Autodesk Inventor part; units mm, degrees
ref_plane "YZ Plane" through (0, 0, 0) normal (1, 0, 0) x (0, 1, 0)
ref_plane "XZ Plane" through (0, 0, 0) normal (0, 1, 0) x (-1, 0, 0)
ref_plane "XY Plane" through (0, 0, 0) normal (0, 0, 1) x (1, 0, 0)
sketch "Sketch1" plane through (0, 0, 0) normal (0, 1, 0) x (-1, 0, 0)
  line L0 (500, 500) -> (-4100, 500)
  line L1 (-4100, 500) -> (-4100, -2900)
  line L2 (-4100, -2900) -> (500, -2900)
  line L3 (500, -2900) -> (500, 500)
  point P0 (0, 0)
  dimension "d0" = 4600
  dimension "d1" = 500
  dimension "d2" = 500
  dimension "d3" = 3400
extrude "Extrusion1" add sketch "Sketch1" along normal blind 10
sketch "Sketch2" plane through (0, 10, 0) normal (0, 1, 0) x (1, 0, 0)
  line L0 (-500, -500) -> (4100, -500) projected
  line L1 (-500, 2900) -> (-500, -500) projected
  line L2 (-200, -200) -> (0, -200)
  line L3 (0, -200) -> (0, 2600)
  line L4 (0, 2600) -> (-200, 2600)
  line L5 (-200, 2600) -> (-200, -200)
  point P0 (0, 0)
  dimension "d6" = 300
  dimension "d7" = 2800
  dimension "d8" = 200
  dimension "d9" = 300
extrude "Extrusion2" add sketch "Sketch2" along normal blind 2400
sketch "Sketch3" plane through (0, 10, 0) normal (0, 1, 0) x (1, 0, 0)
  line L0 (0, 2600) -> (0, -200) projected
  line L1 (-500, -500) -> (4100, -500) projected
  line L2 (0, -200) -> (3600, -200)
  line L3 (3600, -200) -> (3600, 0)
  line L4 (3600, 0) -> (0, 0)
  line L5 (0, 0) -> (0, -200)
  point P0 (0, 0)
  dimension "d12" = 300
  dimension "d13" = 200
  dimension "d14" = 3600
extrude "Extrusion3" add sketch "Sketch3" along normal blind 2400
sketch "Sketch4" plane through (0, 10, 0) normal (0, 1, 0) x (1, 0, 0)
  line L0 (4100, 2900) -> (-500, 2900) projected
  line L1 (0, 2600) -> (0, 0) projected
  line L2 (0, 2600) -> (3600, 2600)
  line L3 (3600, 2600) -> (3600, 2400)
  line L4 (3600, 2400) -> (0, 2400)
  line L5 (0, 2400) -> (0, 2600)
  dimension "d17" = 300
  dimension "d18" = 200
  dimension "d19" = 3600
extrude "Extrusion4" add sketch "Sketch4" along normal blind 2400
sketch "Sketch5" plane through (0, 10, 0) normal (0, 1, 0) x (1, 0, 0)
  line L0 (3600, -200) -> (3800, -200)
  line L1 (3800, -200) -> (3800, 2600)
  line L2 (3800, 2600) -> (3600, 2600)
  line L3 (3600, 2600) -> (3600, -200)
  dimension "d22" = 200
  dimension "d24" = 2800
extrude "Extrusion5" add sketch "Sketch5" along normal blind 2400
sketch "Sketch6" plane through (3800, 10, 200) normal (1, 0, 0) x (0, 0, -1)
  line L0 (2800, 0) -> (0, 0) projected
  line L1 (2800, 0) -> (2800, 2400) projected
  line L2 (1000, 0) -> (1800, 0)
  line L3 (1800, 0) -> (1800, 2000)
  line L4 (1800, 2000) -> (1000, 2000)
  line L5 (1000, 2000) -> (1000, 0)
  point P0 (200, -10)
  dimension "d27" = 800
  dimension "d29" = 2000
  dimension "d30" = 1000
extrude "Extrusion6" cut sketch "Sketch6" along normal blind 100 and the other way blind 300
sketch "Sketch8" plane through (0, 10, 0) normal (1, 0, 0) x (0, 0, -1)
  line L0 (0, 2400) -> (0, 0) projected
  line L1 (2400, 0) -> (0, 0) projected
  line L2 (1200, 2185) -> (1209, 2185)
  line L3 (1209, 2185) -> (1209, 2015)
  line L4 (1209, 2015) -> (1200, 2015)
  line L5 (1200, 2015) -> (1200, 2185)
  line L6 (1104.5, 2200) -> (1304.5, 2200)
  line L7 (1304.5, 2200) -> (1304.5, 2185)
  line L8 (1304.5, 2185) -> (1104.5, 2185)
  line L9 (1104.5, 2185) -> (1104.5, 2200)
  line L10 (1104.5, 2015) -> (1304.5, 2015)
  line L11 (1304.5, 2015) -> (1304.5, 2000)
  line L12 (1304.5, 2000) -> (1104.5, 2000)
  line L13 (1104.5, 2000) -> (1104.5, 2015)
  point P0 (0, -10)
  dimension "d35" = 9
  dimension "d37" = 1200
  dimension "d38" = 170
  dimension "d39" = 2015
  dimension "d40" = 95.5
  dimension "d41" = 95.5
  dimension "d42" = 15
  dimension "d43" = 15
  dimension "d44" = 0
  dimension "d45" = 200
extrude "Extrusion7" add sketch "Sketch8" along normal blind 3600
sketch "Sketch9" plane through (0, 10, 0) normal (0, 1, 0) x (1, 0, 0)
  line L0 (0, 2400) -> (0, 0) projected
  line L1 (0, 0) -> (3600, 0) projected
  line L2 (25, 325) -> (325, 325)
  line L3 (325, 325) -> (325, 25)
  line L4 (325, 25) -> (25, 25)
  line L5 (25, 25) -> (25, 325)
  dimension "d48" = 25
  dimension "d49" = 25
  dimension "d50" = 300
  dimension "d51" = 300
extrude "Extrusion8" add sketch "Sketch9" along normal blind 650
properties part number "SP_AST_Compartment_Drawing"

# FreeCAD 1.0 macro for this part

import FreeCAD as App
import Part
import Sketcher
from FreeCAD import Vector

doc = App.newDocument("Part")
params = doc.addObject("Spreadsheet::Sheet", "Params")
for row, (alias, value) in enumerate([
    ("sketch1_width", "4600 mm"),
    ("sketch1_height", "3400 mm"),
    ("pad1_length", "10 mm"),
    ("sketch2_width", "200 mm"),
    ("sketch2_height", "2800 mm"),
    ("pad2_length", "2400 mm"),
    ("sketch3_width", "3600 mm"),
    ("sketch3_height", "200 mm"),
    ("pad3_length", "2400 mm"),
    ("sketch4_width", "3600 mm"),
    ("sketch4_height", "200 mm"),
    ("pad4_length", "2400 mm"),
    ("sketch5_width", "200 mm"),
    ("sketch5_height", "2800 mm"),
    ("pad5_length", "2400 mm"),
    ("sketch6_width", "2000 mm"),
    ("sketch6_height", "800 mm"),
    ("pocket1_length", "100 mm"),
    ("pocket1_length2", "300 mm"),
    ("sketch7_width", "170 mm"),
    ("sketch7_width2", "15 mm"),
    ("sketch7_height", "200 mm"),
    ("sketch7_height2", "95.5 mm"),
    ("pad6_length", "3600 mm"),
    ("sketch8_width", "300 mm"),
    ("pad7_length", "650 mm"),
], start=1):
    params.set(f"A{row}", alias)
    params.set(f"B{row}", "=" + value)
    params.setAlias(f"B{row}", alias)

body = doc.addObject("PartDesign::Body", "Body")

# Sketch on XZ plane
sketch1 = body.newObject("Sketcher::SketchObject", "Sketch")
sketch1.AttachmentSupport = (doc.getObject("XZ_Plane"), [""])
sketch1.MapMode = "FlatFace"
sketch1.addGeometry(Part.LineSegment(Vector(-500, -2900, 0), Vector(-500, 500, 0)), False)
sketch1.addGeometry(Part.LineSegment(Vector(-500, 500, 0), Vector(4100, 500, 0)), False)
sketch1.addGeometry(Part.LineSegment(Vector(4100, 500, 0), Vector(4100, -2900, 0)), False)
sketch1.addGeometry(Part.LineSegment(Vector(4100, -2900, 0), Vector(-500, -2900, 0)), False)
sketch1.addConstraint(Sketcher.Constraint("Coincident", 0, 2, 1, 1))
sketch1.addConstraint(Sketcher.Constraint("Coincident", 1, 2, 2, 1))
sketch1.addConstraint(Sketcher.Constraint("Coincident", 2, 2, 3, 1))
sketch1.addConstraint(Sketcher.Constraint("Coincident", 3, 2, 0, 1))
sketch1.addConstraint(Sketcher.Constraint("Vertical", 0))
sketch1.addConstraint(Sketcher.Constraint("Horizontal", 1))
sketch1.addConstraint(Sketcher.Constraint("Vertical", 2))
sketch1.addConstraint(Sketcher.Constraint("Horizontal", 3))
sketch1.addConstraint(Sketcher.Constraint("DistanceX", 1, 1, 1, 2, 4600.0))
sketch1.addConstraint(Sketcher.Constraint("DistanceY", 0, 1, 0, 2, 3400.0))
sketch1.addConstraint(Sketcher.Constraint("DistanceX", 0, 2, -1, 1, 500.0))
sketch1.addConstraint(Sketcher.Constraint("DistanceY", -1, 1, 0, 2, 500.0))
sketch1.setExpression("Constraints[8]", "Params.sketch1_width")
sketch1.setExpression("Constraints[9]", "Params.sketch1_height")
pad1 = body.newObject("PartDesign::Pad", "Pad")
pad1.Profile = sketch1
pad1.setExpression("Length", "Params.pad1_length")
pad1.Reversed = True

# Sketch on XZ plane
sketch2 = body.newObject("Sketcher::SketchObject", "Sketch001")
sketch2.AttachmentSupport = (doc.getObject("XZ_Plane"), [""])
sketch2.MapMode = "FlatFace"
sketch2.AttachmentOffset = App.Placement(Vector(0, 0, -10), App.Rotation())
sketch2.addGeometry(Part.LineSegment(Vector(-200, -2600, 0), Vector(-200, 200, 0)), False)
sketch2.addGeometry(Part.LineSegment(Vector(-200, 200, 0), Vector(0, 200, 0)), False)
sketch2.addGeometry(Part.LineSegment(Vector(0, 200, 0), Vector(0, -2600, 0)), False)
sketch2.addGeometry(Part.LineSegment(Vector(0, -2600, 0), Vector(-200, -2600, 0)), False)
sketch2.addConstraint(Sketcher.Constraint("Coincident", 0, 2, 1, 1))
sketch2.addConstraint(Sketcher.Constraint("Coincident", 1, 2, 2, 1))
sketch2.addConstraint(Sketcher.Constraint("Coincident", 2, 2, 3, 1))
sketch2.addConstraint(Sketcher.Constraint("Coincident", 3, 2, 0, 1))
sketch2.addConstraint(Sketcher.Constraint("Vertical", 0))
sketch2.addConstraint(Sketcher.Constraint("Horizontal", 1))
sketch2.addConstraint(Sketcher.Constraint("Vertical", 2))
sketch2.addConstraint(Sketcher.Constraint("Horizontal", 3))
sketch2.addConstraint(Sketcher.Constraint("PointOnObject", 1, 2, -2))
sketch2.addConstraint(Sketcher.Constraint("DistanceX", 1, 1, 1, 2, 200.0))
sketch2.addConstraint(Sketcher.Constraint("DistanceY", 0, 1, 0, 2, 2800.0))
sketch2.addConstraint(Sketcher.Constraint("DistanceY", -1, 1, 0, 2, 200.0))
sketch2.setExpression("Constraints[9]", "Params.sketch2_width")
sketch2.setExpression("Constraints[10]", "Params.sketch2_height")
pad2 = body.newObject("PartDesign::Pad", "Pad001")
pad2.Profile = sketch2
pad2.setExpression("Length", "Params.pad2_length")
pad2.Reversed = True

# Sketch on XZ plane
sketch3 = body.newObject("Sketcher::SketchObject", "Sketch002")
sketch3.AttachmentSupport = (doc.getObject("XZ_Plane"), [""])
sketch3.MapMode = "FlatFace"
sketch3.AttachmentOffset = App.Placement(Vector(0, 0, -10), App.Rotation())
sketch3.addGeometry(Part.LineSegment(Vector(3600, 0, 0), Vector(0, 0, 0)), False)
sketch3.addGeometry(Part.LineSegment(Vector(0, 0, 0), Vector(0, 200, 0)), False)
sketch3.addGeometry(Part.LineSegment(Vector(0, 200, 0), Vector(3600, 200, 0)), False)
sketch3.addGeometry(Part.LineSegment(Vector(3600, 200, 0), Vector(3600, 0, 0)), False)
sketch3.addConstraint(Sketcher.Constraint("Coincident", 0, 2, 1, 1))
sketch3.addConstraint(Sketcher.Constraint("Coincident", 1, 2, 2, 1))
sketch3.addConstraint(Sketcher.Constraint("Coincident", 2, 2, 3, 1))
sketch3.addConstraint(Sketcher.Constraint("Coincident", 3, 2, 0, 1))
sketch3.addConstraint(Sketcher.Constraint("Horizontal", 0))
sketch3.addConstraint(Sketcher.Constraint("Vertical", 1))
sketch3.addConstraint(Sketcher.Constraint("Horizontal", 2))
sketch3.addConstraint(Sketcher.Constraint("Vertical", 3))
sketch3.addConstraint(Sketcher.Constraint("Coincident", 0, 2, -1, 1))
sketch3.addConstraint(Sketcher.Constraint("DistanceX", 0, 2, 0, 1, 3600.0))
sketch3.addConstraint(Sketcher.Constraint("DistanceY", 1, 1, 1, 2, 200.0))
sketch3.setExpression("Constraints[9]", "Params.sketch3_width")
sketch3.setExpression("Constraints[10]", "Params.sketch3_height")
pad3 = body.newObject("PartDesign::Pad", "Pad002")
pad3.Profile = sketch3
pad3.setExpression("Length", "Params.pad3_length")
pad3.Reversed = True

# Sketch on XZ plane
sketch4 = body.newObject("Sketcher::SketchObject", "Sketch003")
sketch4.AttachmentSupport = (doc.getObject("XZ_Plane"), [""])
sketch4.MapMode = "FlatFace"
sketch4.AttachmentOffset = App.Placement(Vector(0, 0, -10), App.Rotation())
sketch4.addGeometry(Part.LineSegment(Vector(3600, -2600, 0), Vector(0, -2600, 0)), False)
sketch4.addGeometry(Part.LineSegment(Vector(0, -2600, 0), Vector(0, -2400, 0)), False)
sketch4.addGeometry(Part.LineSegment(Vector(0, -2400, 0), Vector(3600, -2400, 0)), False)
sketch4.addGeometry(Part.LineSegment(Vector(3600, -2400, 0), Vector(3600, -2600, 0)), False)
sketch4.addConstraint(Sketcher.Constraint("Coincident", 0, 2, 1, 1))
sketch4.addConstraint(Sketcher.Constraint("Coincident", 1, 2, 2, 1))
sketch4.addConstraint(Sketcher.Constraint("Coincident", 2, 2, 3, 1))
sketch4.addConstraint(Sketcher.Constraint("Coincident", 3, 2, 0, 1))
sketch4.addConstraint(Sketcher.Constraint("Horizontal", 0))
sketch4.addConstraint(Sketcher.Constraint("Vertical", 1))
sketch4.addConstraint(Sketcher.Constraint("Horizontal", 2))
sketch4.addConstraint(Sketcher.Constraint("Vertical", 3))
sketch4.addConstraint(Sketcher.Constraint("PointOnObject", 0, 2, -2))
sketch4.addConstraint(Sketcher.Constraint("DistanceX", 0, 2, 0, 1, 3600.0))
sketch4.addConstraint(Sketcher.Constraint("DistanceY", 1, 1, 1, 2, 200.0))
sketch4.addConstraint(Sketcher.Constraint("DistanceY", 0, 2, -1, 1, 2600.0))
sketch4.setExpression("Constraints[9]", "Params.sketch4_width")
sketch4.setExpression("Constraints[10]", "Params.sketch4_height")
pad4 = body.newObject("PartDesign::Pad", "Pad003")
pad4.Profile = sketch4
pad4.setExpression("Length", "Params.pad4_length")
pad4.Reversed = True

# Sketch on XZ plane
sketch5 = body.newObject("Sketcher::SketchObject", "Sketch004")
sketch5.AttachmentSupport = (doc.getObject("XZ_Plane"), [""])
sketch5.MapMode = "FlatFace"
sketch5.AttachmentOffset = App.Placement(Vector(0, 0, -10), App.Rotation())
sketch5.addGeometry(Part.LineSegment(Vector(3600, -2600, 0), Vector(3600, 200, 0)), False)
sketch5.addGeometry(Part.LineSegment(Vector(3600, 200, 0), Vector(3800, 200, 0)), False)
sketch5.addGeometry(Part.LineSegment(Vector(3800, 200, 0), Vector(3800, -2600, 0)), False)
sketch5.addGeometry(Part.LineSegment(Vector(3800, -2600, 0), Vector(3600, -2600, 0)), False)
sketch5.addConstraint(Sketcher.Constraint("Coincident", 0, 2, 1, 1))
sketch5.addConstraint(Sketcher.Constraint("Coincident", 1, 2, 2, 1))
sketch5.addConstraint(Sketcher.Constraint("Coincident", 2, 2, 3, 1))
sketch5.addConstraint(Sketcher.Constraint("Coincident", 3, 2, 0, 1))
sketch5.addConstraint(Sketcher.Constraint("Vertical", 0))
sketch5.addConstraint(Sketcher.Constraint("Horizontal", 1))
sketch5.addConstraint(Sketcher.Constraint("Vertical", 2))
sketch5.addConstraint(Sketcher.Constraint("Horizontal", 3))
sketch5.addConstraint(Sketcher.Constraint("DistanceX", 1, 1, 1, 2, 200.0))
sketch5.addConstraint(Sketcher.Constraint("DistanceY", 0, 1, 0, 2, 2800.0))
sketch5.addConstraint(Sketcher.Constraint("DistanceY", -1, 1, 0, 2, 200.0))
sketch5.addConstraint(Sketcher.Constraint("DistanceX", -1, 1, 0, 2, 3600.0))
sketch5.setExpression("Constraints[8]", "Params.sketch5_width")
sketch5.setExpression("Constraints[9]", "Params.sketch5_height")
pad5 = body.newObject("PartDesign::Pad", "Pad004")
pad5.Profile = sketch5
pad5.setExpression("Length", "Params.pad5_length")
pad5.Reversed = True

# Sketch on YZ plane
sketch6 = body.newObject("Sketcher::SketchObject", "Sketch005")
sketch6.AttachmentSupport = (doc.getObject("YZ_Plane"), [""])
sketch6.MapMode = "FlatFace"
sketch6.AttachmentOffset = App.Placement(Vector(0, 0, 3800), App.Rotation())
sketch6.addGeometry(Part.LineSegment(Vector(10, -800, 0), Vector(10, -1600, 0)), False)
sketch6.addGeometry(Part.LineSegment(Vector(10, -1600, 0), Vector(2010, -1600, 0)), False)
sketch6.addGeometry(Part.LineSegment(Vector(2010, -1600, 0), Vector(2010, -800, 0)), False)
sketch6.addGeometry(Part.LineSegment(Vector(2010, -800, 0), Vector(10, -800, 0)), False)
sketch6.addConstraint(Sketcher.Constraint("Coincident", 0, 2, 1, 1))
sketch6.addConstraint(Sketcher.Constraint("Coincident", 1, 2, 2, 1))
sketch6.addConstraint(Sketcher.Constraint("Coincident", 2, 2, 3, 1))
sketch6.addConstraint(Sketcher.Constraint("Coincident", 3, 2, 0, 1))
sketch6.addConstraint(Sketcher.Constraint("Vertical", 0))
sketch6.addConstraint(Sketcher.Constraint("Horizontal", 1))
sketch6.addConstraint(Sketcher.Constraint("Vertical", 2))
sketch6.addConstraint(Sketcher.Constraint("Horizontal", 3))
sketch6.addConstraint(Sketcher.Constraint("DistanceX", 1, 1, 1, 2, 2000.0))
sketch6.addConstraint(Sketcher.Constraint("DistanceY", 0, 2, 0, 1, 800.0))
sketch6.addConstraint(Sketcher.Constraint("DistanceY", 2, 2, -1, 1, 800.0))
sketch6.addConstraint(Sketcher.Constraint("DistanceX", -1, 1, 0, 2, 10.0))
sketch6.setExpression("Constraints[8]", "Params.sketch6_width")
sketch6.setExpression("Constraints[9]", "Params.sketch6_height")
pocket1 = body.newObject("PartDesign::Pocket", "Pocket")
pocket1.Profile = sketch6
pocket1.Type = "TwoLengths"
pocket1.setExpression("Length", "Params.pocket1_length")
pocket1.setExpression("Length2", "Params.pocket1_length2")
pocket1.Reversed = True

# Sketch on YZ plane
sketch7 = body.newObject("Sketcher::SketchObject", "Sketch006")
sketch7.AttachmentSupport = (doc.getObject("YZ_Plane"), [""])
sketch7.MapMode = "FlatFace"
sketch7.addGeometry(Part.LineSegment(Vector(2195, -1104, 0), Vector(2195, -1200, 0)), False)
sketch7.addGeometry(Part.LineSegment(Vector(2195, -1200, 0), Vector(2025, -1200, 0)), False)
sketch7.addGeometry(Part.LineSegment(Vector(2025, -1200, 0), Vector(2025, -1104, 0)), False)
sketch7.addGeometry(Part.LineSegment(Vector(2025, -1104, 0), Vector(2010, -1104, 0)), False)
sketch7.addGeometry(Part.LineSegment(Vector(2010, -1104, 0), Vector(2010, -1304, 0)), False)
sketch7.addGeometry(Part.LineSegment(Vector(2010, -1304, 0), Vector(2025, -1304, 0)), False)
sketch7.addGeometry(Part.LineSegment(Vector(2025, -1304, 0), Vector(2025, -1209, 0)), False)
sketch7.addGeometry(Part.LineSegment(Vector(2025, -1209, 0), Vector(2195, -1209, 0)), False)
sketch7.addGeometry(Part.LineSegment(Vector(2195, -1209, 0), Vector(2195, -1304, 0)), False)
sketch7.addGeometry(Part.LineSegment(Vector(2195, -1304, 0), Vector(2210, -1304, 0)), False)
sketch7.addGeometry(Part.LineSegment(Vector(2210, -1304, 0), Vector(2210, -1104, 0)), False)
sketch7.addGeometry(Part.LineSegment(Vector(2210, -1104, 0), Vector(2195, -1104, 0)), False)
sketch7.addConstraint(Sketcher.Constraint("Coincident", 0, 2, 1, 1))
sketch7.addConstraint(Sketcher.Constraint("Coincident", 1, 2, 2, 1))
sketch7.addConstraint(Sketcher.Constraint("Coincident", 2, 2, 3, 1))
sketch7.addConstraint(Sketcher.Constraint("Coincident", 3, 2, 4, 1))
sketch7.addConstraint(Sketcher.Constraint("Coincident", 4, 2, 5, 1))
sketch7.addConstraint(Sketcher.Constraint("Coincident", 5, 2, 6, 1))
sketch7.addConstraint(Sketcher.Constraint("Coincident", 6, 2, 7, 1))
sketch7.addConstraint(Sketcher.Constraint("Coincident", 7, 2, 8, 1))
sketch7.addConstraint(Sketcher.Constraint("Coincident", 8, 2, 9, 1))
sketch7.addConstraint(Sketcher.Constraint("Coincident", 9, 2, 10, 1))
sketch7.addConstraint(Sketcher.Constraint("Coincident", 10, 2, 11, 1))
sketch7.addConstraint(Sketcher.Constraint("Coincident", 11, 2, 0, 1))
sketch7.addConstraint(Sketcher.Constraint("Vertical", 0))
sketch7.addConstraint(Sketcher.Constraint("Horizontal", 1))
sketch7.addConstraint(Sketcher.Constraint("Vertical", 2))
sketch7.addConstraint(Sketcher.Constraint("Horizontal", 3))
sketch7.addConstraint(Sketcher.Constraint("Vertical", 4))
sketch7.addConstraint(Sketcher.Constraint("Horizontal", 5))
sketch7.addConstraint(Sketcher.Constraint("Vertical", 6))
sketch7.addConstraint(Sketcher.Constraint("Horizontal", 7))
sketch7.addConstraint(Sketcher.Constraint("Vertical", 8))
sketch7.addConstraint(Sketcher.Constraint("Horizontal", 9))
sketch7.addConstraint(Sketcher.Constraint("Vertical", 10))
sketch7.addConstraint(Sketcher.Constraint("Horizontal", 11))
sketch7.addConstraint(Sketcher.Constraint("Horizontal", 5, 2, 8, 2))
sketch7.addConstraint(Sketcher.Constraint("Horizontal", 3, 2, 10, 2))
sketch7.addConstraint(Sketcher.Constraint("Vertical", 2, 2, 5, 2))
sketch7.addConstraint(Sketcher.Constraint("Vertical", 0, 2, 7, 2))
sketch7.addConstraint(Sketcher.Constraint("Equal", 5, 9))
sketch7.addConstraint(Sketcher.Constraint("Equal", 2, 6))
sketch7.addConstraint(Sketcher.Constraint("DistanceX", 1, 2, 1, 1, 170.0))
sketch7.addConstraint(Sketcher.Constraint("DistanceX", 3, 2, 3, 1, 15.0))
sketch7.addConstraint(Sketcher.Constraint("DistanceY", 4, 2, 4, 1, 200.0))
sketch7.addConstraint(Sketcher.Constraint("DistanceY", 0, 2, 0, 1, 95.5))
sketch7.addConstraint(Sketcher.Constraint("DistanceY", 0, 2, -1, 1, 1200.0))
sketch7.addConstraint(Sketcher.Constraint("DistanceX", -1, 1, 0, 2, 2195.0))
sketch7.setExpression("Constraints[30]", "Params.sketch7_width")
sketch7.setExpression("Constraints[31]", "Params.sketch7_width2")
sketch7.setExpression("Constraints[32]", "Params.sketch7_height")
sketch7.setExpression("Constraints[33]", "Params.sketch7_height2")
pad6 = body.newObject("PartDesign::Pad", "Pad005")
pad6.Profile = sketch7
pad6.setExpression("Length", "Params.pad6_length")

# Sketch on XZ plane
sketch8 = body.newObject("Sketcher::SketchObject", "Sketch007")
sketch8.AttachmentSupport = (doc.getObject("XZ_Plane"), [""])
sketch8.MapMode = "FlatFace"
sketch8.AttachmentOffset = App.Placement(Vector(0, 0, -10), App.Rotation())
sketch8.addGeometry(Part.LineSegment(Vector(325, -325, 0), Vector(25, -325, 0)), False)
sketch8.addGeometry(Part.LineSegment(Vector(25, -325, 0), Vector(25, -25, 0)), False)
sketch8.addGeometry(Part.LineSegment(Vector(25, -25, 0), Vector(325, -25, 0)), False)
sketch8.addGeometry(Part.LineSegment(Vector(325, -25, 0), Vector(325, -325, 0)), False)
sketch8.addConstraint(Sketcher.Constraint("Coincident", 0, 2, 1, 1))
sketch8.addConstraint(Sketcher.Constraint("Coincident", 1, 2, 2, 1))
sketch8.addConstraint(Sketcher.Constraint("Coincident", 2, 2, 3, 1))
sketch8.addConstraint(Sketcher.Constraint("Coincident", 3, 2, 0, 1))
sketch8.addConstraint(Sketcher.Constraint("Horizontal", 0))
sketch8.addConstraint(Sketcher.Constraint("Vertical", 1))
sketch8.addConstraint(Sketcher.Constraint("Horizontal", 2))
sketch8.addConstraint(Sketcher.Constraint("Vertical", 3))
sketch8.addConstraint(Sketcher.Constraint("Equal", 2, 1))
sketch8.addConstraint(Sketcher.Constraint("DistanceX", 0, 2, 0, 1, 300.0))
sketch8.addConstraint(Sketcher.Constraint("DistanceX", -1, 1, 0, 2, 25.0))
sketch8.addConstraint(Sketcher.Constraint("DistanceY", 1, 2, -1, 1, 25.0))
sketch8.setExpression("Constraints[9]", "Params.sketch8_width")
pad7 = body.newObject("PartDesign::Pad", "Pad006")
pad7.Profile = sketch8
pad7.setExpression("Length", "Params.pad7_length")
pad7.Reversed = True

doc.recompute()
